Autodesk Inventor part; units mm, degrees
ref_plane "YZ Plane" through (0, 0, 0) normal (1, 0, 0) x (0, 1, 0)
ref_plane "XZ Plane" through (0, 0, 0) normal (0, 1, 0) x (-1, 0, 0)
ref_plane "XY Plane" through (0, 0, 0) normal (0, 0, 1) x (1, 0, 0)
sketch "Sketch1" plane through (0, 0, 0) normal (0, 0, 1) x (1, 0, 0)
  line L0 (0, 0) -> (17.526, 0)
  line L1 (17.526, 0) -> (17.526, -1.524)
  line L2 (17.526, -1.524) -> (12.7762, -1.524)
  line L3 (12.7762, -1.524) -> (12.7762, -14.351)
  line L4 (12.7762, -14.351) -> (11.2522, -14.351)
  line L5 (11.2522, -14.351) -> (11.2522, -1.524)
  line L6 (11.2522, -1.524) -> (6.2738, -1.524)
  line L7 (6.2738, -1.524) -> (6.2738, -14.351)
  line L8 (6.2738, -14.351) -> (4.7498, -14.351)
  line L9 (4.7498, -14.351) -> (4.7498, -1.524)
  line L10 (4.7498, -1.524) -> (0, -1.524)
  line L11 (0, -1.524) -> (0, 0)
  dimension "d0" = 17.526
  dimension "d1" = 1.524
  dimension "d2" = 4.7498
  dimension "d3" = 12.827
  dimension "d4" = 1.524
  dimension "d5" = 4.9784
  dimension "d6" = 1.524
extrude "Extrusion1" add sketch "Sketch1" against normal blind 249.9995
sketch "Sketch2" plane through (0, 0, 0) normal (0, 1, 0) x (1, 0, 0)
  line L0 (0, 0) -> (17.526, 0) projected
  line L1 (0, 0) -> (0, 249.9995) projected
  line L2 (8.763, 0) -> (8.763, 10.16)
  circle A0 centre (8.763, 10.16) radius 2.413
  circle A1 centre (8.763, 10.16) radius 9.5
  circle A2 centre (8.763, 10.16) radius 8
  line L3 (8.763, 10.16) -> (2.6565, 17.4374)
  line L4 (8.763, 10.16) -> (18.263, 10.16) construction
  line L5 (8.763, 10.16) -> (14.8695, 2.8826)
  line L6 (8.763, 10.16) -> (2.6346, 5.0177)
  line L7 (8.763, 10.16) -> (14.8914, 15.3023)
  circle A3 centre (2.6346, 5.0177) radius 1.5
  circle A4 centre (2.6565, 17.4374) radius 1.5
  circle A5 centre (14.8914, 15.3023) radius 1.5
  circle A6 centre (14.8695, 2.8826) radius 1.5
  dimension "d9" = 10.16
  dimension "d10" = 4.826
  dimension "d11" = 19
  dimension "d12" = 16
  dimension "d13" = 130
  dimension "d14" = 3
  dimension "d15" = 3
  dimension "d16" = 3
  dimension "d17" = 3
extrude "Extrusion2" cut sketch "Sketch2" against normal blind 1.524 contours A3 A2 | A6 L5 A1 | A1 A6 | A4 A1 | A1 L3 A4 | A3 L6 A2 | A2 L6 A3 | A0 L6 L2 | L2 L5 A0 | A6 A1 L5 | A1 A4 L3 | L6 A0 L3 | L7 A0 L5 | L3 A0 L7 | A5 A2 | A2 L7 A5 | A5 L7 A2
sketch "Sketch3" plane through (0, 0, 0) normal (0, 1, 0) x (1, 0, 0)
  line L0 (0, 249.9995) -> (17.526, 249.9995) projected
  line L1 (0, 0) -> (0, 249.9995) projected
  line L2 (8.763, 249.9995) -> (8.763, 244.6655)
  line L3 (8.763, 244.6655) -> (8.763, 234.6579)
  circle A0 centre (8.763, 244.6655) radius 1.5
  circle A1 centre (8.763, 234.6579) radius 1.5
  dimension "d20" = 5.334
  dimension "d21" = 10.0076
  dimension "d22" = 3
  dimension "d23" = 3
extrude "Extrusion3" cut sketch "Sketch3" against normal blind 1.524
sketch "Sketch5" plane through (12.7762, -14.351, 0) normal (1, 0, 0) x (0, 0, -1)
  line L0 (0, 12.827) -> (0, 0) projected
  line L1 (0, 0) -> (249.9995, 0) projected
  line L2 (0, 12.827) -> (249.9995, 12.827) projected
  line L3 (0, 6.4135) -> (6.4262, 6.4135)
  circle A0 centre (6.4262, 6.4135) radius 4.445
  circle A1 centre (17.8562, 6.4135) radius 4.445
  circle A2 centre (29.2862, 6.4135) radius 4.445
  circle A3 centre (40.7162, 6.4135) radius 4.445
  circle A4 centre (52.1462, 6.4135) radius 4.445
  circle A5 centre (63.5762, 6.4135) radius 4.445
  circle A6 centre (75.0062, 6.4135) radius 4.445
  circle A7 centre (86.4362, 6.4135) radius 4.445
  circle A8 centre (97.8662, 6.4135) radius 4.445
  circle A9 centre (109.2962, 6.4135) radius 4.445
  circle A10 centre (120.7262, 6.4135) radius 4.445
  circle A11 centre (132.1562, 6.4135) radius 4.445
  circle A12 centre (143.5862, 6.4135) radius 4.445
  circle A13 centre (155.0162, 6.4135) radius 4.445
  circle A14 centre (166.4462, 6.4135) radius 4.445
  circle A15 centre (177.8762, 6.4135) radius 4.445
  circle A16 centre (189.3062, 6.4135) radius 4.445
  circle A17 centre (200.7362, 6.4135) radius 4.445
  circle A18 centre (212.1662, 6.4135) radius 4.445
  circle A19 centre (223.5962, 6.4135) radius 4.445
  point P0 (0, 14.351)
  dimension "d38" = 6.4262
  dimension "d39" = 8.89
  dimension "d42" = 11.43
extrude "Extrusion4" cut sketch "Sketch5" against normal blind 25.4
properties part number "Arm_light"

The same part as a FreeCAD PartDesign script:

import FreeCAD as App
import Part
import Sketcher

V = App.Vector
Q = App.Units.Quantity


def add_polygon(sketch, points):
    """Adds a closed chain of lines whose ends are joined by coincident constraints."""
    first, n = sketch.GeometryCount, len(points)
    for a, b in zip(points, points[1:] + points[:1]):
        sketch.addGeometry(Part.LineSegment(App.Vector(*a, 0), App.Vector(*b, 0)), False)
    for i in range(n):
        sketch.addConstraint(Sketcher.Constraint("Coincident", first + i, 2, first + (i + 1) % n, 1))

doc = App.newDocument("Part")
body = doc.addObject("PartDesign::Body", "Body")

sketch1 = body.newObject("Sketcher::SketchObject", "Sketch")
sketch1.AttachmentSupport = (doc.getObject("XY_Plane"), [""])
sketch1.MapMode = "FlatFace"
add_polygon(sketch1, [(17.5, 0), (0, 0), (0, -1.5), (4.7, -1.5), (4.7, -14.4), (6.3, -14.4), (6.3, -1.5), (11.3, -1.5), (11.3, -14.4), (12.8, -14.4), (12.8, -1.5), (17.5, -1.5)])
sketch1.addConstraint([
    Sketcher.Constraint("Horizontal", 0),
    Sketcher.Constraint("Vertical", 1),
    Sketcher.Constraint("Horizontal", 2),
    Sketcher.Constraint("Vertical", 3),
    Sketcher.Constraint("Horizontal", 4),
    Sketcher.Constraint("Vertical", 5),
    Sketcher.Constraint("Horizontal", 6),
    Sketcher.Constraint("Vertical", 7),
    Sketcher.Constraint("Horizontal", 8),
    Sketcher.Constraint("Vertical", 9),
    Sketcher.Constraint("Horizontal", 10),
    Sketcher.Constraint("Vertical", 11),
    Sketcher.Constraint("Coincident", 0, 2, -1, 1),
    Sketcher.Constraint("Horizontal", 2, 2, 5, 2),
    Sketcher.Constraint("Horizontal", 4, 2, 7, 2),
    Sketcher.Constraint("Horizontal", 6, 2, 9, 2),
    Sketcher.Constraint("Equal", 4, 8),
    Sketcher.Constraint("Equal", 2, 10),
    Sketcher.Constraint("Equal", 8, 1),
    Sketcher.Constraint("DistanceX", 0, 2, 0, 1, Q("0.69 in")),
    Sketcher.Constraint("DistanceX", 4, 1, 4, 2, Q("0.06 in")),
    Sketcher.Constraint("DistanceX", 2, 1, 2, 2, Q("0.187 in")),
    Sketcher.Constraint("DistanceY", 3, 2, 3, 1, Q("0.505 in")),
])
pad1 = body.newObject("PartDesign::Pad", "Pad")
pad1.Profile = sketch1
pad1.Length = Q("9.8425 in")
pad1.Reversed = True

sketch2 = body.newObject("Sketcher::SketchObject", "Sketch001")
sketch2.AttachmentSupport = (doc.getObject("XZ_Plane"), [""])
sketch2.MapMode = "FlatFace"
sketch2.addGeometry([
    Part.Circle(V(2.6, -5, 0), V(0, 0, 1), 1.5),
    Part.Circle(V(14.9, -2.9, 0), V(0, 0, 1), 1.5),
    Part.Circle(V(2.7, -17.4, 0), V(0, 0, 1), 1.5),
    Part.Circle(V(8.8, -10.2, 0), V(0, 0, 1), 2.4),
    Part.Circle(V(14.9, -15.3, 0), V(0, 0, 1), 1.5),
], False)
sketch2.addConstraint([
    Sketcher.Constraint("Equal", 0, 1),
    Sketcher.Constraint("Equal", 1, 2),
    Sketcher.Constraint("Equal", 2, 4),
    Sketcher.Constraint("Diameter", 3, Q("0.19 in")),
    Sketcher.Constraint("Diameter", 0, Q("0.1181 in")),
    Sketcher.Constraint("DistanceY", 3, 3, -1, 1, Q("0.4 in")),
    Sketcher.Constraint("DistanceX", -1, 1, 3, 3, Q("0.345 in")),
    Sketcher.Constraint("DistanceY", 1, 3, -1, 1, Q("0.1135 in")),
    Sketcher.Constraint("DistanceY", 2, 3, -1, 1, Q("0.6865 in")),
    Sketcher.Constraint("DistanceX", 0, 3, 1, 3, Q("0.4817 in")),
    Sketcher.Constraint("DistanceX", 2, 3, 4, 3, Q("0.4817 in")),
    Sketcher.Constraint("DistanceY", 4, 3, 0, 3, Q("0.4049 in")),
    Sketcher.Constraint("DistanceX", -1, 1, 0, 3, Q("2.6346 mm")),
    Sketcher.Constraint("DistanceY", 0, 3, -1, 1, Q("5.0177 mm")),
    Sketcher.Constraint("DistanceX", -1, 1, 2, 3, Q("2.6565 mm")),
])
pocket1 = body.newObject("PartDesign::Pocket", "Pocket")
pocket1.Profile = sketch2
pocket1.Length = Q("0.06 in")
pocket1.Reversed = True

sketch3 = body.newObject("Sketcher::SketchObject", "Sketch002")
sketch3.AttachmentSupport = (doc.getObject("XZ_Plane"), [""])
sketch3.MapMode = "FlatFace"
sketch3.addGeometry([
    Part.Circle(V(8.8, -244.7, 0), V(0, 0, 1), 1.5),
    Part.Circle(V(8.8, -234.7, 0), V(0, 0, 1), 1.5),
], False)
sketch3.addConstraint([
    Sketcher.Constraint("Equal", 0, 1),
    Sketcher.Constraint("Vertical", 0, 3, 1, 3),
    Sketcher.Constraint("Diameter", 0, Q("0.1181 in")),
    Sketcher.Constraint("DistanceY", 0, 3, 1, 3, Q("0.394 in")),
    Sketcher.Constraint("DistanceX", -1, 1, 0, 3, Q("0.345 in")),
    Sketcher.Constraint("DistanceY", 0, 3, -1, 1, Q("9.6325 in")),
])
pocket2 = body.newObject("PartDesign::Pocket", "Pocket001")
pocket2.Profile = sketch3
pocket2.Length = Q("0.06 in")
pocket2.Reversed = True

sketch4 = body.newObject("Sketcher::SketchObject", "Sketch003")
sketch4.AttachmentSupport = (doc.getObject("YZ_Plane"), [""])
sketch4.MapMode = "FlatFace"
sketch4.AttachmentOffset = App.Placement(V(0, 0, 0.503 * 25.4), App.Rotation())
sketch4.addGeometry([
    Part.Circle(V(-7.9, -6.4, 0), V(0, 0, 1), 4.4),
    Part.Circle(V(-7.9, -17.9, 0), V(0, 0, 1), 4.4),
    Part.Circle(V(-7.9, -29.3, 0), V(0, 0, 1), 4.4),
    Part.Circle(V(-7.9, -40.7, 0), V(0, 0, 1), 4.4),
    Part.Circle(V(-7.9, -52.1, 0), V(0, 0, 1), 4.4),
    Part.Circle(V(-7.9, -63.6, 0), V(0, 0, 1), 4.4),
    Part.Circle(V(-7.9, -75, 0), V(0, 0, 1), 4.4),
    Part.Circle(V(-7.9, -86.4, 0), V(0, 0, 1), 4.4),
    Part.Circle(V(-7.9, -97.9, 0), V(0, 0, 1), 4.4),
    Part.Circle(V(-7.9, -109.3, 0), V(0, 0, 1), 4.4),
    Part.Circle(V(-7.9, -120.7, 0), V(0, 0, 1), 4.4),
    Part.Circle(V(-7.9, -132.2, 0), V(0, 0, 1), 4.4),
    Part.Circle(V(-7.9, -143.6, 0), V(0, 0, 1), 4.4),
    Part.Circle(V(-7.9, -155, 0), V(0, 0, 1), 4.4),
    Part.Circle(V(-7.9, -166.4, 0), V(0, 0, 1), 4.4),
    Part.Circle(V(-7.9, -177.9, 0), V(0, 0, 1), 4.4),
    Part.Circle(V(-7.9, -189.3, 0), V(0, 0, 1), 4.4),
    Part.Circle(V(-7.9, -200.7, 0), V(0, 0, 1), 4.4),
    Part.Circle(V(-7.9, -212.2, 0), V(0, 0, 1), 4.4),
    Part.Circle(V(-7.9, -223.6, 0), V(0, 0, 1), 4.4),
], False)
sketch4.addConstraint([
    Sketcher.Constraint("Equal", 0, 1),
    Sketcher.Constraint("Equal", 1, 2),
    Sketcher.Constraint("Equal", 2, 3),
    Sketcher.Constraint("Equal", 3, 4),
    Sketcher.Constraint("Equal", 4, 5),
    Sketcher.Constraint("Equal", 5, 6),
    Sketcher.Constraint("Equal", 6, 7),
    Sketcher.Constraint("Equal", 7, 8),
    Sketcher.Constraint("Equal", 8, 9),
    Sketcher.Constraint("Equal", 9, 10),
    Sketcher.Constraint("Equal", 10, 11),
    Sketcher.Constraint("Equal", 11, 12),
    Sketcher.Constraint("Equal", 12, 13),
    Sketcher.Constraint("Equal", 13, 14),
    Sketcher.Constraint("Equal", 14, 15),
    Sketcher.Constraint("Equal", 15, 16),
    Sketcher.Constraint("Equal", 16, 17),
    Sketcher.Constraint("Equal", 17, 18),
    Sketcher.Constraint("Equal", 18, 19),
    Sketcher.Constraint("Vertical", 0, 3, 1, 3),
    Sketcher.Constraint("Vertical", 1, 3, 2, 3),
    Sketcher.Constraint("Vertical", 2, 3, 3, 3),
    Sketcher.Constraint("Vertical", 3, 3, 4, 3),
    Sketcher.Constraint("Vertical", 4, 3, 5, 3),
    Sketcher.Constraint("Vertical", 5, 3, 6, 3),
    Sketcher.Constraint("Vertical", 6, 3, 7, 3),
    Sketcher.Constraint("Vertical", 7, 3, 8, 3),
    Sketcher.Constraint("Vertical", 8, 3, 9, 3),
    Sketcher.Constraint("Vertical", 9, 3, 10, 3),
    Sketcher.Constraint("Vertical", 10, 3, 11, 3),
    Sketcher.Constraint("Vertical", 11, 3, 12, 3),
    Sketcher.Constraint("Vertical", 12, 3, 13, 3),
    Sketcher.Constraint("Vertical", 13, 3, 14, 3),
    Sketcher.Constraint("Vertical", 14, 3, 15, 3),
    Sketcher.Constraint("Vertical", 15, 3, 16, 3),
    Sketcher.Constraint("Vertical", 16, 3, 17, 3),
    Sketcher.Constraint("Vertical", 17, 3, 18, 3),
    Sketcher.Constraint("Vertical", 18, 3, 19, 3),
    Sketcher.Constraint("Diameter", 0, Q("0.35 in")),
    Sketcher.Constraint("DistanceY", 1, 3, 0, 3, Q("0.45 in")),
    Sketcher.Constraint("DistanceY", 2, 3, 1, 3, Q("0.45 in")),
    Sketcher.Constraint("DistanceY", 3, 3, 2, 3, Q("0.45 in")),
    Sketcher.Constraint("DistanceY", 4, 3, 3, 3, Q("0.45 in")),
    Sketcher.Constraint("DistanceY", 5, 3, 4, 3, Q("0.45 in")),
    Sketcher.Constraint("DistanceY", 6, 3, 5, 3, Q("0.45 in")),
    Sketcher.Constraint("DistanceY", 7, 3, 6, 3, Q("0.45 in")),
    Sketcher.Constraint("DistanceY", 8, 3, 7, 3, Q("0.45 in")),
    Sketcher.Constraint("DistanceY", 9, 3, 8, 3, Q("0.45 in")),
    Sketcher.Constraint("DistanceY", 10, 3, 9, 3, Q("0.45 in")),
    Sketcher.Constraint("DistanceY", 11, 3, 10, 3, Q("0.45 in")),
    Sketcher.Constraint("DistanceY", 12, 3, 11, 3, Q("0.45 in")),
    Sketcher.Constraint("DistanceY", 13, 3, 12, 3, Q("0.45 in")),
    Sketcher.Constraint("DistanceY", 14, 3, 13, 3, Q("0.45 in")),
    Sketcher.Constraint("DistanceY", 15, 3, 14, 3, Q("0.45 in")),
    Sketcher.Constraint("DistanceY", 16, 3, 15, 3, Q("0.45 in")),
    Sketcher.Constraint("DistanceY", 17, 3, 16, 3, Q("0.45 in")),
    Sketcher.Constraint("DistanceY", 18, 3, 17, 3, Q("0.45 in")),
    Sketcher.Constraint("DistanceY", 19, 3, 18, 3, Q("0.45 in")),
    Sketcher.Constraint("DistanceY", 0, 3, -1, 1, Q("0.253 in")),
    Sketcher.Constraint("DistanceX", 0, 3, -1, 1, Q("0.3125 in")),
])
pocket3 = body.newObject("PartDesign::Pocket", "Pocket002")
pocket3.Profile = sketch4
pocket3.Length = Q("1 in")

doc.recompute()
